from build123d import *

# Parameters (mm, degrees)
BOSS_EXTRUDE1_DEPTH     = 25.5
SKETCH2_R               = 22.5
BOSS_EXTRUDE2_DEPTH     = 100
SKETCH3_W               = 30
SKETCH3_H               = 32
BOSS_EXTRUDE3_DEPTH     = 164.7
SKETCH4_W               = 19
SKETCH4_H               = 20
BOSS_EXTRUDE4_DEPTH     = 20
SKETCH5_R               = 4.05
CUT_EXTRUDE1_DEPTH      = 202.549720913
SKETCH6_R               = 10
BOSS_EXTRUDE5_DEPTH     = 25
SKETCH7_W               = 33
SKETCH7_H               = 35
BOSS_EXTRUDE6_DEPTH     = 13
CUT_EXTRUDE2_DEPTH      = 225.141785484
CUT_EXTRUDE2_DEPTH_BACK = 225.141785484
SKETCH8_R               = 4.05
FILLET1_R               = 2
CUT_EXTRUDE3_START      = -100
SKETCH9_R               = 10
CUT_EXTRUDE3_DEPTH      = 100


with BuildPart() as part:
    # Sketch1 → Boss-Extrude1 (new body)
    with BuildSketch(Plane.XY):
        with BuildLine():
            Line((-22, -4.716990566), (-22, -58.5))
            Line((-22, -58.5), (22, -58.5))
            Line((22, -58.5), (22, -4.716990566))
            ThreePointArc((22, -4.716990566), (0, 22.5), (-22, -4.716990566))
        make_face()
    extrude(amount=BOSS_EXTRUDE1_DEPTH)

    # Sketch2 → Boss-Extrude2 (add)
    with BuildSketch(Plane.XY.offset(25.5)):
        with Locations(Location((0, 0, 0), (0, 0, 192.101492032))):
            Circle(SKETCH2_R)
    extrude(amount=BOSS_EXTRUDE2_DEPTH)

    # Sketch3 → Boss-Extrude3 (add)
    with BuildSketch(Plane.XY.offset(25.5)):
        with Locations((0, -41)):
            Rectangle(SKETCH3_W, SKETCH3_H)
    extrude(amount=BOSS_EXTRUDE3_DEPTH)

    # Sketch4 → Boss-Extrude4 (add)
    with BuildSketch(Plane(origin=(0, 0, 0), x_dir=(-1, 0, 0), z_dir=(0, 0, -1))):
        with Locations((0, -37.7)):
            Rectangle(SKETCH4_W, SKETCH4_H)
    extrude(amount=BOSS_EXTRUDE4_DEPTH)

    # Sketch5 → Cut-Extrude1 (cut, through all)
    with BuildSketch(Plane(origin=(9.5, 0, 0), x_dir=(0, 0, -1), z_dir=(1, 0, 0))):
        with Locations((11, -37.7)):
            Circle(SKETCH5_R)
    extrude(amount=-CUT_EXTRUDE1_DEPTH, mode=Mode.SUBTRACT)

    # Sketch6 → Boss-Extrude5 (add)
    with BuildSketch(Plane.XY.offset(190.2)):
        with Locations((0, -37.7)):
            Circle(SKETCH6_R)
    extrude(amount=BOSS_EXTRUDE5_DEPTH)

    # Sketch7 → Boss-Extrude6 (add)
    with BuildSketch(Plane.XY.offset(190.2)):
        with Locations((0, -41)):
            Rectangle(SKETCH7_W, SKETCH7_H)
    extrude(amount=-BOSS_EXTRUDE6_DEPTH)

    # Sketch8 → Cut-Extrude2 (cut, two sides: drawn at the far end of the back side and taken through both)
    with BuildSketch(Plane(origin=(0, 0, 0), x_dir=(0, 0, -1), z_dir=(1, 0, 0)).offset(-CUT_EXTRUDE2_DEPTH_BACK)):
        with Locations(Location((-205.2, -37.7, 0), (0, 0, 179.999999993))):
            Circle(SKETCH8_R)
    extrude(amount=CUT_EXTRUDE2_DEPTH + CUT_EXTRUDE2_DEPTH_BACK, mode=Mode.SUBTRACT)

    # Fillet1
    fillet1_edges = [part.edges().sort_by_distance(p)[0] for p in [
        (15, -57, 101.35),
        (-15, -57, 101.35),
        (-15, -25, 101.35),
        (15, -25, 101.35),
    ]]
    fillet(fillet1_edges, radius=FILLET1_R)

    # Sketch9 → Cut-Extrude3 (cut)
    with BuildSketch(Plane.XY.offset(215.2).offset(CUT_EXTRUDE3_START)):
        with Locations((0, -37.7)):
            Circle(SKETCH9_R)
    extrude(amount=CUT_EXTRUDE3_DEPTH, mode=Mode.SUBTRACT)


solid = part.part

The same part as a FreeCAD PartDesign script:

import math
import FreeCAD as App
import Part
import Sketcher
from FreeCAD import Vector


def edges_at(feature, points):
    """Names of the edges that pass closest to the given points."""
    edges = feature.Shape.Edges
    near = lambda p: min(range(len(edges)), key=lambda i: edges[i].distToShape(Part.Vertex(*p))[0])
    return sorted({f"Edge{near(p) + 1}" for p in points})


def add_polygon(sketch, points):
    """Adds a closed chain of lines whose ends are joined by coincident constraints."""
    first, n = sketch.GeometryCount, len(points)
    for a, b in zip(points, points[1:] + points[:1]):
        sketch.addGeometry(Part.LineSegment(App.Vector(*a, 0), App.Vector(*b, 0)), False)
    for i in range(n):
        sketch.addConstraint(Sketcher.Constraint("Coincident", first + i, 2, first + (i + 1) % n, 1))

doc = App.newDocument("Part")
body = doc.addObject("PartDesign::Body", "Body")

# Sketch on XY plane
sketch1 = body.newObject("Sketcher::SketchObject", "Sketch")
sketch1.AttachmentSupport = (doc.getObject("XY_Plane"), [""])
sketch1.MapMode = "FlatFace"
sketch1.addGeometry([
    Part.LineSegment(Vector(-22, -5, 0), Vector(-22, -58, 0)),
    Part.LineSegment(Vector(-22, -58, 0), Vector(22, -58, 0)),
    Part.LineSegment(Vector(22, -58, 0), Vector(22, -5, 0)),
    Part.ArcOfCircle(Part.Circle(Vector(0, 0, 0), Vector(0, 0, 1), 22), math.radians(-12), math.radians(192)),
], False)
sketch1.addConstraint([
    Sketcher.Constraint("Coincident", 0, 2, 1, 1),
    Sketcher.Constraint("Coincident", 1, 2, 2, 1),
    Sketcher.Constraint("Coincident", 2, 2, 3, 1),
    Sketcher.Constraint("Coincident", 3, 2, 0, 1),
    Sketcher.Constraint("Vertical", 0),
    Sketcher.Constraint("Horizontal", 1),
    Sketcher.Constraint("Vertical", 2),
    Sketcher.Constraint("Coincident", 3, 3, -1, 1),
    Sketcher.Constraint("Horizontal", 2, 2, 3, 2),
    Sketcher.Constraint("Radius", 3, 22.5),
    Sketcher.Constraint("DistanceX", 1, 1, 1, 2, 44.0),
    Sketcher.Constraint("DistanceY", 0, 2, -1, 1, 58.5),
])
pad1 = body.newObject("PartDesign::Pad", "Pad")
pad1.Profile = sketch1
pad1.Length = 25.5

# Sketch on XY plane
sketch2 = body.newObject("Sketcher::SketchObject", "Sketch001")
sketch2.AttachmentSupport = (doc.getObject("XY_Plane"), [""])
sketch2.MapMode = "FlatFace"
sketch2.AttachmentOffset = App.Placement(Vector(0, 0, 25.5), App.Rotation())
sketch2.addGeometry(Part.Circle(Vector(0, 0, 0), Vector(0, 0, 1), 22), False)
sketch2.addConstraint([
    Sketcher.Constraint("Coincident", 0, 3, -1, 1),
    Sketcher.Constraint("Diameter", 0, 45.0),
])
pad2 = body.newObject("PartDesign::Pad", "Pad001")
pad2.Profile = sketch2
pad2.Length = 100

# Sketch on XY plane
sketch3 = body.newObject("Sketcher::SketchObject", "Sketch002")
sketch3.AttachmentSupport = (doc.getObject("XY_Plane"), [""])
sketch3.MapMode = "FlatFace"
sketch3.AttachmentOffset = App.Placement(Vector(0, 0, 25.5), App.Rotation())
add_polygon(sketch3, [(-15, -25), (-15, -57), (15, -57), (15, -25)])  # lines 0-3
sketch3.addConstraint([
    Sketcher.Constraint("Vertical", 0),
    Sketcher.Constraint("Horizontal", 1),
    Sketcher.Constraint("Vertical", 2),
    Sketcher.Constraint("Horizontal", 3),
    Sketcher.Constraint("DistanceX", 1, 1, 1, 2, 30.0),
    Sketcher.Constraint("DistanceY", 0, 2, 0, 1, 32.0),
    Sketcher.Constraint("DistanceX", 0, 2, -1, 1, 15.0),
    Sketcher.Constraint("DistanceY", 0, 2, -1, 1, 57.0),
])
pad3 = body.newObject("PartDesign::Pad", "Pad002")
pad3.Profile = sketch3
pad3.Length = 164.7

# Sketch on XY plane
sketch4 = body.newObject("Sketcher::SketchObject", "Sketch003")
sketch4.AttachmentSupport = (doc.getObject("XY_Plane"), [""])
sketch4.MapMode = "FlatFace"
add_polygon(sketch4, [(10, -28), (10, -48), (-10, -48), (-10, -28)])  # lines 0-3
sketch4.addConstraint([
    Sketcher.Constraint("Vertical", 0),
    Sketcher.Constraint("Horizontal", 1),
    Sketcher.Constraint("Vertical", 2),
    Sketcher.Constraint("Horizontal", 3),
    Sketcher.Constraint("DistanceX", 1, 2, 1, 1, 19.0),
    Sketcher.Constraint("DistanceY", 0, 2, 0, 1, 20.0),
    Sketcher.Constraint("DistanceX", -1, 1, 0, 2, 9.5),
    Sketcher.Constraint("DistanceY", 0, 2, -1, 1, 47.7),
])
pad4 = body.newObject("PartDesign::Pad", "Pad003")
pad4.Profile = sketch4
pad4.Length = 20
pad4.Reversed = True

# Sketch on YZ plane
sketch5 = body.newObject("Sketcher::SketchObject", "Sketch004")
sketch5.AttachmentSupport = (doc.getObject("YZ_Plane"), [""])
sketch5.MapMode = "FlatFace"
sketch5.AttachmentOffset = App.Placement(Vector(0, 0, 9.5), App.Rotation())
sketch5.addGeometry(Part.Circle(Vector(-37.7, -11, 0), Vector(0, 0, 1), 4), False)
sketch5.addConstraint([
    Sketcher.Constraint("Diameter", 0, 8.1),
    Sketcher.Constraint("DistanceY", 0, 3, -1, 1, 11.0),
    Sketcher.Constraint("DistanceX", 0, 3, -1, 1, 37.7),
])
pocket1 = body.newObject("PartDesign::Pocket", "Pocket")
pocket1.Profile = sketch5
pocket1.Type = "ThroughAll"

# Sketch on XY plane
sketch6 = body.newObject("Sketcher::SketchObject", "Sketch005")
sketch6.AttachmentSupport = (doc.getObject("XY_Plane"), [""])
sketch6.MapMode = "FlatFace"
sketch6.AttachmentOffset = App.Placement(Vector(0, 0, 190.2), App.Rotation())
sketch6.addGeometry(Part.Circle(Vector(0, -38, 0), Vector(0, 0, 1), 10), False)
sketch6.addConstraint([
    Sketcher.Constraint("PointOnObject", 0, 3, -2),
    Sketcher.Constraint("Diameter", 0, 20.0),
    Sketcher.Constraint("DistanceY", 0, 3, -1, 1, 37.7),
])
pad5 = body.newObject("PartDesign::Pad", "Pad004")
pad5.Profile = sketch6
pad5.Length = 25

# Sketch on XY plane
sketch7 = body.newObject("Sketcher::SketchObject", "Sketch006")
sketch7.AttachmentSupport = (doc.getObject("XY_Plane"), [""])
sketch7.MapMode = "FlatFace"
sketch7.AttachmentOffset = App.Placement(Vector(0, 0, 190.2), App.Rotation())
add_polygon(sketch7, [(-16, -24), (-16, -58), (16, -58), (16, -24)])  # lines 0-3
sketch7.addConstraint([
    Sketcher.Constraint("Vertical", 0),
    Sketcher.Constraint("Horizontal", 1),
    Sketcher.Constraint("Vertical", 2),
    Sketcher.Constraint("Horizontal", 3),
    Sketcher.Constraint("DistanceX", 1, 1, 1, 2, 33.0),
    Sketcher.Constraint("DistanceY", 0, 2, 0, 1, 35.0),
    Sketcher.Constraint("DistanceX", 0, 2, -1, 1, 16.5),
    Sketcher.Constraint("DistanceY", 0, 2, -1, 1, 58.5),
])
pad6 = body.newObject("PartDesign::Pad", "Pad005")
pad6.Profile = sketch7
pad6.Length = 13
pad6.Reversed = True

# Sketch on YZ plane
sketch8 = body.newObject("Sketcher::SketchObject", "Sketch007")
sketch8.AttachmentSupport = (doc.getObject("YZ_Plane"), [""])
sketch8.MapMode = "FlatFace"
sketch8.addGeometry(Part.Circle(Vector(-37.7, 205.2, 0), Vector(0, 0, 1), 4), False)
sketch8.addConstraint([
    Sketcher.Constraint("Diameter", 0, 8.1),
    Sketcher.Constraint("DistanceX", 0, 3, -1, 1, 37.7),
    Sketcher.Constraint("DistanceY", -1, 1, 0, 3, 205.2),
])
pocket2 = body.newObject("PartDesign::Pocket", "Pocket001")
pocket2.Profile = sketch8
pocket2.Type = "ThroughAll"
pocket2.Midplane = True
doc.recompute()

fillet = body.newObject("PartDesign::Fillet", "Fillet")
fillet.Base = (pocket2, edges_at(pocket2, [
    (15, -57, 101.35),
    (-15, -57, 101.35),
    (-15, -25, 101.35),
    (15, -25, 101.35),
]))
fillet.Radius = 2

# Sketch on XY plane
sketch9 = body.newObject("Sketcher::SketchObject", "Sketch008")
sketch9.AttachmentSupport = (doc.getObject("XY_Plane"), [""])
sketch9.MapMode = "FlatFace"
sketch9.AttachmentOffset = App.Placement(Vector(0, 0, 115.2), App.Rotation())
sketch9.addGeometry(Part.Circle(Vector(0, -38, 0), Vector(0, 0, 1), 10), False)
sketch9.addConstraint([
    Sketcher.Constraint("PointOnObject", 0, 3, -2),
    Sketcher.Constraint("Diameter", 0, 20.0),
    Sketcher.Constraint("DistanceY", 0, 3, -1, 1, 37.7),
])
pocket3 = body.newObject("PartDesign::Pocket", "Pocket002")
pocket3.Profile = sketch9
pocket3.Length = 100
pocket3.Reversed = True

doc.recompute()
